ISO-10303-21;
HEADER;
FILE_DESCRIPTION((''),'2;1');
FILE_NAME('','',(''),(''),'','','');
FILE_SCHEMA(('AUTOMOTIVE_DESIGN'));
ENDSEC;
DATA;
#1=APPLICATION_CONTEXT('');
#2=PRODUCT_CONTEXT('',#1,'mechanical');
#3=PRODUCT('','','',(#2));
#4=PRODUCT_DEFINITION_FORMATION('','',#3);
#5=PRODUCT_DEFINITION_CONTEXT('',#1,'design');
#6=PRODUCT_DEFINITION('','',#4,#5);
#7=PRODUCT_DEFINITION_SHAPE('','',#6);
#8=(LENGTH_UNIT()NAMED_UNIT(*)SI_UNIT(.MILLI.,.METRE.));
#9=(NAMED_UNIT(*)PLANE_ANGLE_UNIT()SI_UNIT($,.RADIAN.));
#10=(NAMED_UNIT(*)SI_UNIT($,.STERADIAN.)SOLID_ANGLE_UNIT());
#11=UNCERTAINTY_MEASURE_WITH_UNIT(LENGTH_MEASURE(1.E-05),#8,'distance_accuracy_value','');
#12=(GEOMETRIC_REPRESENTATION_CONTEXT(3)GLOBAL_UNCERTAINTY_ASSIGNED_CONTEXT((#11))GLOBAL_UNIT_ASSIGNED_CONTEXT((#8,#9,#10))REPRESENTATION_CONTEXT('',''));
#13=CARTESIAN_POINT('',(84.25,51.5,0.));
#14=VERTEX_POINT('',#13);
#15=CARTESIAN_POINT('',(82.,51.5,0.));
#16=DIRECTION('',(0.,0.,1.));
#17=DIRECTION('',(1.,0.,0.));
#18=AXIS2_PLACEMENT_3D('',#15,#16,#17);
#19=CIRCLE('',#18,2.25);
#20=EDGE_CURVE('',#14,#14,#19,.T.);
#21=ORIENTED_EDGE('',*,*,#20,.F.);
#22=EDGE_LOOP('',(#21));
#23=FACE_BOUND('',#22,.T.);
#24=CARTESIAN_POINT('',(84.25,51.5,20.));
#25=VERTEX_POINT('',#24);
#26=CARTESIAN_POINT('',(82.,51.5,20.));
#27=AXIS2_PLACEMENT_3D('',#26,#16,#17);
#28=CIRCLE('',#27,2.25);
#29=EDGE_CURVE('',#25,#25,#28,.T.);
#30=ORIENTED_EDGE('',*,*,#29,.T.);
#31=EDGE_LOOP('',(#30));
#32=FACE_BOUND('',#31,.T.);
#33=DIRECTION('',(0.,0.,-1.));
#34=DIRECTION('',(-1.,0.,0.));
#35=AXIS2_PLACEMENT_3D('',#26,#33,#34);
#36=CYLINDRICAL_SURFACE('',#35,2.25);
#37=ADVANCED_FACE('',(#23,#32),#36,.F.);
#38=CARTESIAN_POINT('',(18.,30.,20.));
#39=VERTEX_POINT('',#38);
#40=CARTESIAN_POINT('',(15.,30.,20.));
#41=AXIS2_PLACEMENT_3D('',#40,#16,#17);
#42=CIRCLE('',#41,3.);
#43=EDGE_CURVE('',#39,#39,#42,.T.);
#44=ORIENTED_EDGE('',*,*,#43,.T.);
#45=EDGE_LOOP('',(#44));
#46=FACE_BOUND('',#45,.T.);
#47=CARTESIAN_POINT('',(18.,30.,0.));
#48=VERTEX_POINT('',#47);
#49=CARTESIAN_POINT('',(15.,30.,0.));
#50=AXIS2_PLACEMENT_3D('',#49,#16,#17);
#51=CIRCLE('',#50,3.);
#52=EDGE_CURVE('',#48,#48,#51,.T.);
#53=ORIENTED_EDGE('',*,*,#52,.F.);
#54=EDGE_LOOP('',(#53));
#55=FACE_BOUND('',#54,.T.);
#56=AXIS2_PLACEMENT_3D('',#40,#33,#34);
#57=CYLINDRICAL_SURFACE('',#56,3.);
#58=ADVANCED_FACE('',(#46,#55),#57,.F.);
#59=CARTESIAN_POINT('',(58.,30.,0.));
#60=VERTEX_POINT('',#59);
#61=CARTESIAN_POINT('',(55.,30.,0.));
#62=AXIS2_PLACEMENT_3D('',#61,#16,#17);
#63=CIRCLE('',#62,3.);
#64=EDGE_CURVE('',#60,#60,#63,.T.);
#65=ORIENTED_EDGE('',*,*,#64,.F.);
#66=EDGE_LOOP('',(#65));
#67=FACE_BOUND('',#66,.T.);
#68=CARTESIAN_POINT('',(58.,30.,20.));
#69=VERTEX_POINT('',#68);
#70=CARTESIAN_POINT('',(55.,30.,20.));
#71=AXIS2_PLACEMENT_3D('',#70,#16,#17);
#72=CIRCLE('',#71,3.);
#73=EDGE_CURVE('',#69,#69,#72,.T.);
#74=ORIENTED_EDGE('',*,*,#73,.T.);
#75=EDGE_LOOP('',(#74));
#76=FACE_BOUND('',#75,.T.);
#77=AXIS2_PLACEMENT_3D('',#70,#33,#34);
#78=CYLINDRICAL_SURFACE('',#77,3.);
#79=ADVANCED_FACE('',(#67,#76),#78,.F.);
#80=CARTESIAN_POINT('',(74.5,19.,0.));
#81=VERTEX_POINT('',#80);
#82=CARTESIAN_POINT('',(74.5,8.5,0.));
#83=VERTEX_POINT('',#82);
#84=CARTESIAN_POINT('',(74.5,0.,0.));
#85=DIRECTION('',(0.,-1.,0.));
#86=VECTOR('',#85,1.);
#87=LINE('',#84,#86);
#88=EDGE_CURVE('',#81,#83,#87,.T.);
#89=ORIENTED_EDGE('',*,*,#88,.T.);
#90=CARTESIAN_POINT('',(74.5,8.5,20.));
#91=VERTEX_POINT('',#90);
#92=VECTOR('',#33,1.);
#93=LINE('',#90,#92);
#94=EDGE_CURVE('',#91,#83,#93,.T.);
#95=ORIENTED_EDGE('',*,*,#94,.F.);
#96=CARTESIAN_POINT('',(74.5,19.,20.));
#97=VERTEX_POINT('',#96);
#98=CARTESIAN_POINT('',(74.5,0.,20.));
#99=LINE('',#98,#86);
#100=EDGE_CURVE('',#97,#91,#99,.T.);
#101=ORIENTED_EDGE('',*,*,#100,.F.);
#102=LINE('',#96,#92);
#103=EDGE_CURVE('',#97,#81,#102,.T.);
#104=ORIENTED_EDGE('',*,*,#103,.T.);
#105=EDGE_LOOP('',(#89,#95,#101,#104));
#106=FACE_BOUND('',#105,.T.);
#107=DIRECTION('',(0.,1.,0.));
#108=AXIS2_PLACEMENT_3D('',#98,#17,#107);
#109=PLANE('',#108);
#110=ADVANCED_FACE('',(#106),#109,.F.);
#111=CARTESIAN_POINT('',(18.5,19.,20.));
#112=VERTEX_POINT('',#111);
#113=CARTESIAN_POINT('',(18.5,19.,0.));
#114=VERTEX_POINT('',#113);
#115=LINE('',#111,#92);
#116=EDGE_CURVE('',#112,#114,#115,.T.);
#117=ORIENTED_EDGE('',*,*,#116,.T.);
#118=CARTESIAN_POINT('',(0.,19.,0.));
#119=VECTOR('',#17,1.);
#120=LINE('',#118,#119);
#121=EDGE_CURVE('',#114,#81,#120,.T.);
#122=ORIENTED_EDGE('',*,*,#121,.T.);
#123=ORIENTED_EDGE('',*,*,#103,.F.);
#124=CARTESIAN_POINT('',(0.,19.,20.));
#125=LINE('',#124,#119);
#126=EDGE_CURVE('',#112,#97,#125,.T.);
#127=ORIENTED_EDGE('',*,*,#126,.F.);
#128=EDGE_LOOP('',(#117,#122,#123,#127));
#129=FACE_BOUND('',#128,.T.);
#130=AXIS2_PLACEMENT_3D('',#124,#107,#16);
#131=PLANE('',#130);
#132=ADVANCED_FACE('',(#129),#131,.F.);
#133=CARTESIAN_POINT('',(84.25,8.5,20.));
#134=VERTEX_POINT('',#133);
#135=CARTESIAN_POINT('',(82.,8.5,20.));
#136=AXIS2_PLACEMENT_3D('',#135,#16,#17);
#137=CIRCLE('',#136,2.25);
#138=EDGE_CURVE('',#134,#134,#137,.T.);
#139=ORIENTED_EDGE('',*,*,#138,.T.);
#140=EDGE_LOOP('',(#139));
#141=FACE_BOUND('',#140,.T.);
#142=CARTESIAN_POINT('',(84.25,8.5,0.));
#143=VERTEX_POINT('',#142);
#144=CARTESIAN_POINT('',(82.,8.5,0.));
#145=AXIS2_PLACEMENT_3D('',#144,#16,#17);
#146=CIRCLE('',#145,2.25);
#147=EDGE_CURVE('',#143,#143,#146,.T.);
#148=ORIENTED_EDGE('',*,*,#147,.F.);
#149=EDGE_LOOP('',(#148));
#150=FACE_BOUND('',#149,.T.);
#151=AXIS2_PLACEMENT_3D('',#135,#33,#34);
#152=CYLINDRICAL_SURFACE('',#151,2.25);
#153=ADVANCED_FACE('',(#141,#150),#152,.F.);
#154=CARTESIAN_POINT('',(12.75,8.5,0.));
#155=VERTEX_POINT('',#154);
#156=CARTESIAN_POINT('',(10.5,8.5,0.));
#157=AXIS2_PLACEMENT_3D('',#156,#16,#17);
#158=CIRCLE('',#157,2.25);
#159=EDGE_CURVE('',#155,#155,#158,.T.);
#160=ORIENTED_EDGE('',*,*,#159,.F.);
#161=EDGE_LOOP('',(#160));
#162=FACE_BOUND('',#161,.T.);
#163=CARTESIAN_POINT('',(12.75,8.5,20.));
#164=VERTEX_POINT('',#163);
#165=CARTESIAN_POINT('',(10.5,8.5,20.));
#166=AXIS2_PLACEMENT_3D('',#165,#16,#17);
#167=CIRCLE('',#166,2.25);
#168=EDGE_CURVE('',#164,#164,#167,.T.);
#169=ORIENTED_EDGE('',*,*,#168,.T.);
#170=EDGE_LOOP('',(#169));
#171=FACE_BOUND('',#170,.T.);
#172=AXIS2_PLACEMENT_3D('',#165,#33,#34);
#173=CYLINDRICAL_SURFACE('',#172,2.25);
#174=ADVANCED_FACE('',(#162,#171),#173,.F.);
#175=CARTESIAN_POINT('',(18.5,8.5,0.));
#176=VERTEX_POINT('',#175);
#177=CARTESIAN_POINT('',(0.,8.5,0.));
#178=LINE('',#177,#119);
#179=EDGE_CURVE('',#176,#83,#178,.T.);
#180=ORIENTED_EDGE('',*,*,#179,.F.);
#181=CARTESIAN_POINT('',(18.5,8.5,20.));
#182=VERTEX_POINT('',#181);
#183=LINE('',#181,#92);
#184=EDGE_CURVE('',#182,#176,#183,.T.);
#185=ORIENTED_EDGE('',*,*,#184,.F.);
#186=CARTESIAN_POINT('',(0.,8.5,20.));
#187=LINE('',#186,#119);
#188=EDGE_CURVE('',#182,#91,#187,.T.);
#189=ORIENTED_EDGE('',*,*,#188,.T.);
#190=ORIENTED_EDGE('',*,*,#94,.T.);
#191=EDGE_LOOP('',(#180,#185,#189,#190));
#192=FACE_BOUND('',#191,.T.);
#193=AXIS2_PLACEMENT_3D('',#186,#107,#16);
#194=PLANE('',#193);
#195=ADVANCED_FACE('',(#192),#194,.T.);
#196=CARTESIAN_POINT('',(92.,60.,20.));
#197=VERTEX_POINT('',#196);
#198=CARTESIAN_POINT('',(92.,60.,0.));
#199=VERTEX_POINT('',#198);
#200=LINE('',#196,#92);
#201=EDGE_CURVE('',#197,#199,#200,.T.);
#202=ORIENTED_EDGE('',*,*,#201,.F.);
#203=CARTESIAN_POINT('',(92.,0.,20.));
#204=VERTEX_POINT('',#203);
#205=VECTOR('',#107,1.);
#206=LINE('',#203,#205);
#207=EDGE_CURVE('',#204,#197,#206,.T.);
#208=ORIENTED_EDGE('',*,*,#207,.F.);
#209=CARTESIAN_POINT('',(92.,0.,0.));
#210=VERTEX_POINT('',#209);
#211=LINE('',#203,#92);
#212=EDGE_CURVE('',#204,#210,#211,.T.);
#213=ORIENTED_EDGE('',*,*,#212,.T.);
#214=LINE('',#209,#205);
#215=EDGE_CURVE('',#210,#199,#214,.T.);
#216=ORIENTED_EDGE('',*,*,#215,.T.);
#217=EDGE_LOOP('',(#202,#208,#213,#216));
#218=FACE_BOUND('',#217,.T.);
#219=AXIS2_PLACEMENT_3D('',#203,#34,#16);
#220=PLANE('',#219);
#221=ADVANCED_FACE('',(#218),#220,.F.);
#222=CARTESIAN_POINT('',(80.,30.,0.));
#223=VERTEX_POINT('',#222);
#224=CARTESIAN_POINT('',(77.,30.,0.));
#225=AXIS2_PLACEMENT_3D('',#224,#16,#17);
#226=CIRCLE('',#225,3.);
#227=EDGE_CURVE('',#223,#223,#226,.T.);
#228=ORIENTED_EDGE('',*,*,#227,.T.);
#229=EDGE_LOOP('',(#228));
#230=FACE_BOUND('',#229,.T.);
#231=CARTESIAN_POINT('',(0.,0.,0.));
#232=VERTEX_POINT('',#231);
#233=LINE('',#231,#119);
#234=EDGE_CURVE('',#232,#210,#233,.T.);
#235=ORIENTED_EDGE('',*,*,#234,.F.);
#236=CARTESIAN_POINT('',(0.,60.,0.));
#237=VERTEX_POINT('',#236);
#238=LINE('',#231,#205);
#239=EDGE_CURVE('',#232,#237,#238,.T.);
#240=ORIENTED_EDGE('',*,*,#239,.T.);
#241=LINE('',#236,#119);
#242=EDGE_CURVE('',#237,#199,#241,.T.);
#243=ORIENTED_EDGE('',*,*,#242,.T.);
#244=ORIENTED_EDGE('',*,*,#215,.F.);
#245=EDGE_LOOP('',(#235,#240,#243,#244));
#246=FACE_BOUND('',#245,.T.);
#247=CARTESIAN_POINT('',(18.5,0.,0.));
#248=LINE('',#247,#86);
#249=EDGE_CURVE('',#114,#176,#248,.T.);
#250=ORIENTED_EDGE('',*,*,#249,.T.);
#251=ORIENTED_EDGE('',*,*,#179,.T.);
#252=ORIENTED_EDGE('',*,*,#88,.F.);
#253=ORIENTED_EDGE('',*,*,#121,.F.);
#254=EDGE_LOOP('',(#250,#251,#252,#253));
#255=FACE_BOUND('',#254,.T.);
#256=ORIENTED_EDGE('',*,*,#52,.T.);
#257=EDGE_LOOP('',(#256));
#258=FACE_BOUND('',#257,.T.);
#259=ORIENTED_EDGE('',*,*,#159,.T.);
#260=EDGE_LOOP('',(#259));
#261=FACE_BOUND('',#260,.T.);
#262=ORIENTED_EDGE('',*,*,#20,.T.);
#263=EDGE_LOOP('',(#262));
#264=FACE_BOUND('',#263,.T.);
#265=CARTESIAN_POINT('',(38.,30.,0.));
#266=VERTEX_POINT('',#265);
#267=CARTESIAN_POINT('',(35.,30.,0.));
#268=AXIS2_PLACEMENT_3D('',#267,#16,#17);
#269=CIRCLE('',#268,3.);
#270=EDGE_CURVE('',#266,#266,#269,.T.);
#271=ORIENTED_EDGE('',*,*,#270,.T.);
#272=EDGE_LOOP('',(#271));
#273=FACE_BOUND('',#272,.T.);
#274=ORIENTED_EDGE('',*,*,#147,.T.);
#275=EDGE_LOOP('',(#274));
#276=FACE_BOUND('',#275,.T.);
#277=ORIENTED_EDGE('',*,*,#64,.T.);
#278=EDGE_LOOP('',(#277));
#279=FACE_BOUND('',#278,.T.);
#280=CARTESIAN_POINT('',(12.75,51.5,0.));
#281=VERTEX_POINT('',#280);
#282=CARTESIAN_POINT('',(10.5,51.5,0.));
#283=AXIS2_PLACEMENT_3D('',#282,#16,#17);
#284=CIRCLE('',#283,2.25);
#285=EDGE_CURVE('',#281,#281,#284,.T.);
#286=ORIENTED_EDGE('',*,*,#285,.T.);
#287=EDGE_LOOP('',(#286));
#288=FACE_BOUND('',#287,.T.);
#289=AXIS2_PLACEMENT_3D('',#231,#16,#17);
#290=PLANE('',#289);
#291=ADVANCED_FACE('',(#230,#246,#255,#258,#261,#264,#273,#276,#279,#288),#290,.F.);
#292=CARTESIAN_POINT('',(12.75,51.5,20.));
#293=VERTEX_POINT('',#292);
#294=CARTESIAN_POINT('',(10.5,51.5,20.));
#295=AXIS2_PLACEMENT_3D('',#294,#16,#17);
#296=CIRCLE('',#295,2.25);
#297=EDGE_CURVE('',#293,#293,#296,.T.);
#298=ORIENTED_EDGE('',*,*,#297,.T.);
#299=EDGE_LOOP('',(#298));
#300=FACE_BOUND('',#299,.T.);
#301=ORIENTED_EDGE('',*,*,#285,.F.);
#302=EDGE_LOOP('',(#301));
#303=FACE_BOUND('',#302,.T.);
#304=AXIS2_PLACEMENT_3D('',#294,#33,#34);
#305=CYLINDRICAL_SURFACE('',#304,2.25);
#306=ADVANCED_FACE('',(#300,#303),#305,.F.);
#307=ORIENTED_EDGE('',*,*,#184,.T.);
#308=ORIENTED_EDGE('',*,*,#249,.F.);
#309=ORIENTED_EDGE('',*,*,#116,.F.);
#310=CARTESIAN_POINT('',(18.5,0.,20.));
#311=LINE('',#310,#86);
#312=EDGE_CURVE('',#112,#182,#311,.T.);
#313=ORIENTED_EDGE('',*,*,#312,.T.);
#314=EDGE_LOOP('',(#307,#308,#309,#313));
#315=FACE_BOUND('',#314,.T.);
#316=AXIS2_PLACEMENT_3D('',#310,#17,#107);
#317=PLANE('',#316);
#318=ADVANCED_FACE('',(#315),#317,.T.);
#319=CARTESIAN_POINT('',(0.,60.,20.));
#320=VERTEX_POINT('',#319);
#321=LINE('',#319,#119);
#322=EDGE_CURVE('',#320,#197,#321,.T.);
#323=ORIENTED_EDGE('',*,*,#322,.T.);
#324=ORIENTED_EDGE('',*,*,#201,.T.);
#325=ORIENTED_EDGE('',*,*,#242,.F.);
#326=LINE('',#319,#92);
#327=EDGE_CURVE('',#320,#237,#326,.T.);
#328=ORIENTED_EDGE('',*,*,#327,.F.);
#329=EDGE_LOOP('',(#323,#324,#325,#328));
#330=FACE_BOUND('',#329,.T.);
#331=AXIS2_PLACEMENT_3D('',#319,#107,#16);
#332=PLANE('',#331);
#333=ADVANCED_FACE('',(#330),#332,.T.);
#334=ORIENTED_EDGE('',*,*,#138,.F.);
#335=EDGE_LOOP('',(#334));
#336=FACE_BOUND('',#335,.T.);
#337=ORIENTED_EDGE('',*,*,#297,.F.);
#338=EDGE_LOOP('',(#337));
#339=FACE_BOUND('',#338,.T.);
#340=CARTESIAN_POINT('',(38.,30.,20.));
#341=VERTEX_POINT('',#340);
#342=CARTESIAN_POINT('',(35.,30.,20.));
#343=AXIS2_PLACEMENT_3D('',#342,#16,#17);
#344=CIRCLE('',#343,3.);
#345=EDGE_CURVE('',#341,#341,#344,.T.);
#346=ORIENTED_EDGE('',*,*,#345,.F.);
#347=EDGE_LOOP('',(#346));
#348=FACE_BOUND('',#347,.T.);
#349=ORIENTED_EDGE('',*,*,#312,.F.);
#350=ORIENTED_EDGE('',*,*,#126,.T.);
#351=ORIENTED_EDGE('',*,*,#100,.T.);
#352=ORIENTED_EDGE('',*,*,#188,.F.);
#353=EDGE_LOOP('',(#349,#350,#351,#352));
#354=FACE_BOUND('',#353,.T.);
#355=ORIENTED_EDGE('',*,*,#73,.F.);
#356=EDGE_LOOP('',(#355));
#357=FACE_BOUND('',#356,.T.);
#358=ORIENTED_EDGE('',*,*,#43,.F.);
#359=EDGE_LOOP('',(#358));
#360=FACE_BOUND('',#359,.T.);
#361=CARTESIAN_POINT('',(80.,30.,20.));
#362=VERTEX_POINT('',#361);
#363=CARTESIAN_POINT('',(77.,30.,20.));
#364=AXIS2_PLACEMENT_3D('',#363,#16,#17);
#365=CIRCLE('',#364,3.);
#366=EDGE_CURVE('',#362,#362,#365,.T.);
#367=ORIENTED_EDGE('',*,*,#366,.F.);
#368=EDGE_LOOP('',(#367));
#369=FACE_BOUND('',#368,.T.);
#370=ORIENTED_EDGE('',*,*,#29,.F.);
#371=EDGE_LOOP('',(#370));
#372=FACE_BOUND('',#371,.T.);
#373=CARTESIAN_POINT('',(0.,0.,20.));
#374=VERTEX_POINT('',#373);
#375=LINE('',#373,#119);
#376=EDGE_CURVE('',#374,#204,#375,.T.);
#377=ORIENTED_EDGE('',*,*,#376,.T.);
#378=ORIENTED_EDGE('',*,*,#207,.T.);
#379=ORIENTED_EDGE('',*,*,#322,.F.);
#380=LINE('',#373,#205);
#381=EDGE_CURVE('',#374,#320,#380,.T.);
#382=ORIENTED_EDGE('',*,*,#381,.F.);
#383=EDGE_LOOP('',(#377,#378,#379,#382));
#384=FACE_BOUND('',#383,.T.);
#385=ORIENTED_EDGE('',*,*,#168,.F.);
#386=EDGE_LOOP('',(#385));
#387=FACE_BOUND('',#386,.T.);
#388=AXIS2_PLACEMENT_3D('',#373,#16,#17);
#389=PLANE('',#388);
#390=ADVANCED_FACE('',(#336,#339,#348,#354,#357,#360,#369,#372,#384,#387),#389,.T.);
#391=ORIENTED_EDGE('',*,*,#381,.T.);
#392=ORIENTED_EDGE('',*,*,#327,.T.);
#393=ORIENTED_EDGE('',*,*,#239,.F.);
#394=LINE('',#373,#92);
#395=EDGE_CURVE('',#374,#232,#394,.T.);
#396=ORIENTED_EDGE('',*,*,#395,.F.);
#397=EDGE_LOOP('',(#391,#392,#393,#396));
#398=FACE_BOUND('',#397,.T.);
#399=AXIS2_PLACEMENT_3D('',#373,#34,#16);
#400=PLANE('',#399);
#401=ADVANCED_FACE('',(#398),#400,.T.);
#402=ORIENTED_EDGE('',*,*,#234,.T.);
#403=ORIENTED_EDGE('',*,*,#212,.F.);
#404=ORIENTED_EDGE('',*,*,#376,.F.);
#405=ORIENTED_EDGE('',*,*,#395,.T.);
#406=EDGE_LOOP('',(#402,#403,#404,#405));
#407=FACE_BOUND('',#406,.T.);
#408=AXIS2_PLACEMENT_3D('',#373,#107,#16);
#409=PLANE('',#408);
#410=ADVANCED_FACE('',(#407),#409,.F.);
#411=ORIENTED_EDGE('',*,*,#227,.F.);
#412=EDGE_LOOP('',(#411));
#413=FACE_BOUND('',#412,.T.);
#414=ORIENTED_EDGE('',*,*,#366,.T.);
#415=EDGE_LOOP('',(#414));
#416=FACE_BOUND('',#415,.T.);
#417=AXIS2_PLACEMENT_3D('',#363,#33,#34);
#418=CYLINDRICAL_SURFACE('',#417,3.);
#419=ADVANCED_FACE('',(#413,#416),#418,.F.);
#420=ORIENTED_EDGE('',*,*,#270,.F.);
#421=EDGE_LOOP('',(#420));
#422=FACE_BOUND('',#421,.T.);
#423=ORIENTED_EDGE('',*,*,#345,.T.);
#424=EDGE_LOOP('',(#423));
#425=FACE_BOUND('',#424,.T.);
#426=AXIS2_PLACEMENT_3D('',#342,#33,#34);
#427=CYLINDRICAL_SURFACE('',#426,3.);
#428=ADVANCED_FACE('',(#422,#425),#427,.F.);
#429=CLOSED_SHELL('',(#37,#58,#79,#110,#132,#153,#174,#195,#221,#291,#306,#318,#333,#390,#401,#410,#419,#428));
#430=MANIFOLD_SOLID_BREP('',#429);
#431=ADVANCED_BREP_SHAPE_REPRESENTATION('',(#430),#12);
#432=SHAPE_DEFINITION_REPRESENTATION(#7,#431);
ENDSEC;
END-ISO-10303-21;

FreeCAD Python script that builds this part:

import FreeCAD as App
import Part
import Sketcher

V = App.Vector


def add_polygon(sketch, points):
    """Adds a closed chain of lines whose ends are joined by coincident constraints."""
    first, n = sketch.GeometryCount, len(points)
    for a, b in zip(points, points[1:] + points[:1]):
        sketch.addGeometry(Part.LineSegment(App.Vector(*a, 0), App.Vector(*b, 0)), False)
    for i in range(n):
        sketch.addConstraint(Sketcher.Constraint("Coincident", first + i, 2, first + (i + 1) % n, 1))

doc = App.newDocument("Part")
body = doc.addObject("PartDesign::Body", "Body")

# Sketch on XY plane
sketch1 = body.newObject("Sketcher::SketchObject", "Sketch")
sketch1.AttachmentSupport = (doc.getObject("XY_Plane"), [""])
sketch1.MapMode = "FlatFace"
add_polygon(sketch1, [(0, 60), (0, 0), (92, 0), (92, 60)])  # lines 0-3
sketch1.addGeometry(Part.Circle(V(10.5, 51.5, 0), V(0, 0, 1), 2.2), False)  # 4
sketch1.addGeometry(Part.Circle(V(82, 51.5, 0), V(0, 0, 1), 2.2), False)  # 5
sketch1.addGeometry(Part.Circle(V(55, 30, 0), V(0, 0, 1), 3), False)  # 6
sketch1.addGeometry(Part.Circle(V(77, 30, 0), V(0, 0, 1), 3), False)  # 7
sketch1.addGeometry(Part.Circle(V(10.5, 8.5, 0), V(0, 0, 1), 2.2), False)  # 8
add_polygon(sketch1, [(74.5, 8.5), (18.5, 8.5), (18.5, 19), (74.5, 19)])  # lines 9-12
sketch1.addGeometry(Part.Circle(V(82, 8.5, 0), V(0, 0, 1), 2.2), False)  # 13
sketch1.addGeometry(Part.Circle(V(15, 30, 0), V(0, 0, 1), 3), False)  # 14
sketch1.addGeometry(Part.Circle(V(35, 30, 0), V(0, 0, 1), 3), False)  # 15
sketch1.addConstraint([
    Sketcher.Constraint("Vertical", 0),
    Sketcher.Constraint("Horizontal", 1),
    Sketcher.Constraint("Vertical", 2),
    Sketcher.Constraint("Horizontal", 3),
    Sketcher.Constraint("Horizontal", 9),
    Sketcher.Constraint("Vertical", 10),
    Sketcher.Constraint("Horizontal", 11),
    Sketcher.Constraint("Vertical", 12),
    Sketcher.Constraint("Coincident", 0, 2, -1, 1),
    Sketcher.Constraint("Equal", 4, 5),
    Sketcher.Constraint("Equal", 6, 7),
    Sketcher.Constraint("Equal", 5, 8),
    Sketcher.Constraint("Equal", 8, 13),
    Sketcher.Constraint("Equal", 7, 14),
    Sketcher.Constraint("Equal", 14, 15),
    Sketcher.Constraint("Horizontal", 4, 3, 5, 3),
    Sketcher.Constraint("Horizontal", 6, 3, 7, 3),
    Sketcher.Constraint("Horizontal", 8, 3, 13, 3),
    Sketcher.Constraint("Horizontal", 7, 3, 14, 3),
    Sketcher.Constraint("Horizontal", 14, 3, 15, 3),
    Sketcher.Constraint("Horizontal", 13, 3, 9, 2),
    Sketcher.Constraint("Vertical", 4, 3, 8, 3),
    Sketcher.Constraint("Vertical", 5, 3, 13, 3),
    Sketcher.Constraint("Diameter", 6, 6.0),
    Sketcher.Constraint("Diameter", 4, 4.5),
    Sketcher.Constraint("DistanceX", 1, 1, 1, 2, 92.0),
    Sketcher.Constraint("DistanceX", 9, 2, 9, 1, 56.0),
    Sketcher.Constraint("DistanceY", 0, 2, 0, 1, 60.0),
    Sketcher.Constraint("DistanceY", 10, 1, 10, 2, 10.5),
    Sketcher.Constraint("DistanceX", -1, 1, 5, 3, 82.0),
    Sketcher.Constraint("DistanceX", -1, 1, 6, 3, 55.0),
    Sketcher.Constraint("DistanceY", -1, 1, 6, 3, 30.0),
    Sketcher.Constraint("DistanceX", -1, 1, 7, 3, 77.0),
    Sketcher.Constraint("DistanceX", -1, 1, 14, 3, 15.0),
    Sketcher.Constraint("DistanceX", -1, 1, 15, 3, 35.0),
    Sketcher.Constraint("DistanceY", -1, 1, 10, 2, 19.0),
    Sketcher.Constraint("DistanceY", 8, 3, 4, 3, 43.0),
    Sketcher.Constraint("DistanceX", 8, 3, 9, 2, 8.0),
    Sketcher.Constraint("DistanceX", -1, 1, 4, 3, 10.5),
])
pad1 = body.newObject("PartDesign::Pad", "Pad")
pad1.Profile = sketch1
pad1.Length = 20

doc.recompute()
